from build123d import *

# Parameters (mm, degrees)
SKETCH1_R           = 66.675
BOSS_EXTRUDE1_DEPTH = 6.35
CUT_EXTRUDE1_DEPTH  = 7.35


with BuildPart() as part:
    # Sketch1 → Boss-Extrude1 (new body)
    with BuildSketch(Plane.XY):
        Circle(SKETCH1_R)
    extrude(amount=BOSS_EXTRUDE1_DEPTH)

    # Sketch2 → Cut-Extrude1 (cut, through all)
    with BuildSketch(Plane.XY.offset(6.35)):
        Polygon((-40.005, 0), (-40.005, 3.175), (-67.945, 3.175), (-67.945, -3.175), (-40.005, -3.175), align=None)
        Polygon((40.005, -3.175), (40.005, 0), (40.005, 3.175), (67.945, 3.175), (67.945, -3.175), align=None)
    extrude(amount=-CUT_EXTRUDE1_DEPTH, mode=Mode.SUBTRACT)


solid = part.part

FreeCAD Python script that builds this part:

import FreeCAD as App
import Part
import Sketcher
Q = App.Units.Quantity

doc = App.newDocument("Part")
body = doc.addObject("PartDesign::Body", "Body")

sketch1 = body.newObject("Sketcher::SketchObject", "Sketch")
sketch1.AttachmentSupport = (doc.getObject("XY_Plane"), [""])
sketch1.MapMode = "FlatFace"
sketch1.addGeometry(Part.Circle(App.Vector(0, 0, 0), App.Vector(0, 0, 1), 66.675), False)
sketch1.addConstraint([
    Sketcher.Constraint("Coincident", 0, 3, -1, 1),
    Sketcher.Constraint("Diameter", 0, Q("5.25 in")),
])
pad1 = body.newObject("PartDesign::Pad", "Pad")
pad1.Profile = sketch1
pad1.Length = Q("0.25 in")

sketch2 = body.newObject("Sketcher::SketchObject", "Sketch001")
sketch2.AttachmentSupport = (doc.getObject("XY_Plane"), [""])
sketch2.MapMode = "FlatFace"
sketch2.AttachmentOffset = App.Placement(App.Vector(0, 0, 0.25 * 25.4), App.Rotation())
sketch2.addGeometry([
    Part.LineSegment(App.Vector(-40.005, 3.175, 0), App.Vector(-67.945, 3.175, 0)),
    Part.LineSegment(App.Vector(-67.945, 3.175, 0), App.Vector(-67.945, -3.175, 0)),
    Part.LineSegment(App.Vector(-67.945, -3.175, 0), App.Vector(-40.005, -3.175, 0)),
    Part.LineSegment(App.Vector(-40.005, -3.175, 0), App.Vector(-40.005, 3.175, 0)),
    Part.LineSegment(App.Vector(40.005, 3.175, 0), App.Vector(40.005, -3.175, 0)),
    Part.LineSegment(App.Vector(40.005, -3.175, 0), App.Vector(67.945, -3.175, 0)),
    Part.LineSegment(App.Vector(67.945, -3.175, 0), App.Vector(67.945, 3.175, 0)),
    Part.LineSegment(App.Vector(67.945, 3.175, 0), App.Vector(40.005, 3.175, 0)),
], False)
sketch2.addConstraint([
    Sketcher.Constraint("Coincident", 0, 2, 1, 1),
    Sketcher.Constraint("Coincident", 1, 2, 2, 1),
    Sketcher.Constraint("Coincident", 2, 2, 3, 1),
    Sketcher.Constraint("Coincident", 3, 2, 0, 1),
    Sketcher.Constraint("Coincident", 4, 2, 5, 1),
    Sketcher.Constraint("Coincident", 5, 2, 6, 1),
    Sketcher.Constraint("Coincident", 6, 2, 7, 1),
    Sketcher.Constraint("Coincident", 7, 2, 4, 1),
    Sketcher.Constraint("Horizontal", 0),
    Sketcher.Constraint("Vertical", 1),
    Sketcher.Constraint("Horizontal", 2),
    Sketcher.Constraint("Vertical", 3),
    Sketcher.Constraint("Vertical", 4),
    Sketcher.Constraint("Horizontal", 5),
    Sketcher.Constraint("Vertical", 6),
    Sketcher.Constraint("Horizontal", 7),
    Sketcher.Constraint("Symmetric", 3, 2, 4, 2, -1, 1),
    Sketcher.Constraint("Symmetric", 1, 2, 6, 2, -1, 1),
    Sketcher.Constraint("Horizontal", 2, 2, 4, 2),
    Sketcher.Constraint("DistanceX", 0, 2, 0, 1, Q("1.1 in")),
    Sketcher.Constraint("DistanceY", 1, 2, 1, 1, Q("0.25 in")),
    Sketcher.Constraint("DistanceX", 2, 2, 4, 2, Q("3.15 in")),
])
pocket1 = body.newObject("PartDesign::Pocket", "Pocket")
pocket1.Profile = sketch2
pocket1.Type = "ThroughAll"

doc.recompute()
